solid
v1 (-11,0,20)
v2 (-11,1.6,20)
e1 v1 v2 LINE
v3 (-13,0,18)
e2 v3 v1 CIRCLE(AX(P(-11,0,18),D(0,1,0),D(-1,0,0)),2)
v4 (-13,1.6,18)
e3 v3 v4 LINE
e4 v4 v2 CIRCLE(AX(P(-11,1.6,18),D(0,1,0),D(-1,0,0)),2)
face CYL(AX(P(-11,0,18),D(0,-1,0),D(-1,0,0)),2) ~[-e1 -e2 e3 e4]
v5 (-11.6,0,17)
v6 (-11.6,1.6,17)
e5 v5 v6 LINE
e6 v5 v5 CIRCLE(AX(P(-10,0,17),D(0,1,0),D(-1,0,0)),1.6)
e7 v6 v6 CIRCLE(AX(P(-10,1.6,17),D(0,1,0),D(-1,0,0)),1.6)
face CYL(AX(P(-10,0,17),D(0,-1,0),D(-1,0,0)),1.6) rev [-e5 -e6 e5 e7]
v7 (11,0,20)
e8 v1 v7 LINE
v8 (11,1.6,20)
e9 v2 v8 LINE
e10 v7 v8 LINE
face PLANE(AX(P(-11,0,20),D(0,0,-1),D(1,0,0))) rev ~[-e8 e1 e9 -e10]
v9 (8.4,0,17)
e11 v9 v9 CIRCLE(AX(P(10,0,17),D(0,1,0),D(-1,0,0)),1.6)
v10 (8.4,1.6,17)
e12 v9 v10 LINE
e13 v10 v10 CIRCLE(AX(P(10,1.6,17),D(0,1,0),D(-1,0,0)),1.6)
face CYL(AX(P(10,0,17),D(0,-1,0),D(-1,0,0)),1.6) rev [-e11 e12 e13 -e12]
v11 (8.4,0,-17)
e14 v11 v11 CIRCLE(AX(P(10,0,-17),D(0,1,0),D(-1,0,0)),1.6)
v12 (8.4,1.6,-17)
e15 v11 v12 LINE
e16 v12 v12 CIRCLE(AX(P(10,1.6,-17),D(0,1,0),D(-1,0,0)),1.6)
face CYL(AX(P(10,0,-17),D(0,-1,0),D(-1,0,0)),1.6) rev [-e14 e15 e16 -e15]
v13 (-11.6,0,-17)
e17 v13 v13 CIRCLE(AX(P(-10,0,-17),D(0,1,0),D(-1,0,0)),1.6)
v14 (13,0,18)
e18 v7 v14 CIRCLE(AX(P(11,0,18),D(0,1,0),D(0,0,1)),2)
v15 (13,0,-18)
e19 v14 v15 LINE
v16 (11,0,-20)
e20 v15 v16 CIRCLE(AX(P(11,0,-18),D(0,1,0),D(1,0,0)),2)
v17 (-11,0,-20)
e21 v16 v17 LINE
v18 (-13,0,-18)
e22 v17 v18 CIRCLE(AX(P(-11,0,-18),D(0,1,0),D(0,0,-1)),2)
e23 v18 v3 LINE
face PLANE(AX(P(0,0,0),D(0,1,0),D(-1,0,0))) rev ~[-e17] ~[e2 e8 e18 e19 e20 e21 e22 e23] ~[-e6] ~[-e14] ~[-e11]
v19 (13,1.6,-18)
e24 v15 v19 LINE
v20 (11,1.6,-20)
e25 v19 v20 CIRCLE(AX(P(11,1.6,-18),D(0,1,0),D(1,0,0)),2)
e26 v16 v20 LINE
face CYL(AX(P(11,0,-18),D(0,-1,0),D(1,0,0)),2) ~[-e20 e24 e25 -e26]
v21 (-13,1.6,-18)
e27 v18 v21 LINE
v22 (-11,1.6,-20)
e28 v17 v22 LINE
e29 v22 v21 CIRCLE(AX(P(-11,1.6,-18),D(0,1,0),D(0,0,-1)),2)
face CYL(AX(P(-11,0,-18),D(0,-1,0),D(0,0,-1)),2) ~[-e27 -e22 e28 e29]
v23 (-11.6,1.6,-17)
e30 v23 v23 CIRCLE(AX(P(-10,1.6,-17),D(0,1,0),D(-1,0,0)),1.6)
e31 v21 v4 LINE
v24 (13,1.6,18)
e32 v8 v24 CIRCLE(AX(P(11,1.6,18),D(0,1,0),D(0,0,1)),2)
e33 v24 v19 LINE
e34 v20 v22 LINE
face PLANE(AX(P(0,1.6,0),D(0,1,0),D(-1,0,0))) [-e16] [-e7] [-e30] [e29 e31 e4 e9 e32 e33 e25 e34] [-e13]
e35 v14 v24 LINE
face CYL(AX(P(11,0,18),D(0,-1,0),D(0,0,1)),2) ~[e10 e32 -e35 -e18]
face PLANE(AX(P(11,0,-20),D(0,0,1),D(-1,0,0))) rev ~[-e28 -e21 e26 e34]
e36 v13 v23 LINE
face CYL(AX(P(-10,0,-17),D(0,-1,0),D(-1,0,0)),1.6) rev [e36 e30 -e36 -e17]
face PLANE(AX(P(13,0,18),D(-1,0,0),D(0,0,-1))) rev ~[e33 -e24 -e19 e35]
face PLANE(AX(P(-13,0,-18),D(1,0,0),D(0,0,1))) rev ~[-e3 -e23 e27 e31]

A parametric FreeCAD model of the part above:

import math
import FreeCAD as App
import Part
import Sketcher

V = App.Vector
Q = App.Units.Quantity

doc = App.newDocument("Part")
body = doc.addObject("PartDesign::Body", "Body")

# Sketch on XZ plane
sketch1 = body.newObject("Sketcher::SketchObject", "Sketch")
sketch1.AttachmentSupport = (doc.getObject("XZ_Plane"), [""])
sketch1.MapMode = "FlatFace"
sketch1.addGeometry([
    Part.ArcOfCircle(Part.Circle(V(11, 18, 0), V(0, 0, 1), 2), math.radians(0), math.radians(90)),  # 0
    Part.LineSegment(V(13, 18, 0), V(13, -18, 0)),  # 1
    Part.ArcOfCircle(Part.Circle(V(11, -18, 0), V(0, 0, 1), 2), math.radians(-90), math.radians(0)),  # 2
    Part.LineSegment(V(11, -20, 0), V(-11, -20, 0)),  # 3
    Part.ArcOfCircle(Part.Circle(V(-11, -18, 0), V(0, 0, 1), 2), math.radians(180), math.radians(270)),  # 4
    Part.LineSegment(V(-13, -18, 0), V(-13, 18, 0)),  # 5
    Part.ArcOfCircle(Part.Circle(V(-11, 18, 0), V(0, 0, 1), 2), math.radians(90), math.radians(180)),  # 6
    Part.LineSegment(V(-11, 20, 0), V(11, 20, 0)),  # 7
    Part.Circle(V(10, -17, 0), V(0, 0, 1), 1.6),  # 8
    Part.Circle(V(-10, -17, 0), V(0, 0, 1), 1.6),  # 9
    Part.Circle(V(10, 17, 0), V(0, 0, 1), 1.6),  # 10
    Part.Circle(V(-10, 17, 0), V(0, 0, 1), 1.6),  # 11
], False)
sketch1.addConstraint([
    Sketcher.Constraint("Tangent", 0, 1, 1, 1),
    Sketcher.Constraint("Tangent", 1, 2, 2, 2),
    Sketcher.Constraint("Tangent", 2, 1, 3, 1),
    Sketcher.Constraint("Tangent", 3, 2, 4, 2),
    Sketcher.Constraint("Tangent", 4, 1, 5, 1),
    Sketcher.Constraint("Tangent", 5, 2, 6, 2),
    Sketcher.Constraint("Tangent", 6, 1, 7, 1),
    Sketcher.Constraint("Tangent", 7, 2, 0, 2),
    Sketcher.Constraint("Vertical", 1),
    Sketcher.Constraint("Horizontal", 3),
    Sketcher.Constraint("Vertical", 5),
    Sketcher.Constraint("Horizontal", 7),
    Sketcher.Constraint("Equal", 0, 2),
    Sketcher.Constraint("Equal", 2, 4),
    Sketcher.Constraint("Equal", 4, 6),
    Sketcher.Constraint("Equal", 8, 9),
    Sketcher.Constraint("Equal", 9, 10),
    Sketcher.Constraint("Equal", 10, 11),
    Sketcher.Constraint("Symmetric", 0, 3, 4, 3, -1, 1),
    Sketcher.Constraint("Symmetric", 9, 3, 10, 3, -1, 1),
    Sketcher.Constraint("Symmetric", 8, 3, 11, 3, -1, 1),
    Sketcher.Constraint("Symmetric", 8, 3, 9, 3, -2),
    Sketcher.Constraint("Diameter", 8, Q("3.2 mm")),
    Sketcher.Constraint("Radius", 0, Q("2 mm")),
    Sketcher.Constraint("DistanceX", 3, 2, 3, 1, Q("22 mm")),
    Sketcher.Constraint("DistanceY", 1, 2, 1, 1, Q("36 mm")),
    Sketcher.Constraint("DistanceX", -1, 1, 8, 3, Q("10 mm")),
    Sketcher.Constraint("DistanceY", 8, 3, -1, 1, Q("17 mm")),
])
pad1 = body.newObject("PartDesign::Pad", "Pad")
pad1.Profile = sketch1
pad1.Length = 1.6
pad1.Reversed = True

doc.recompute()
